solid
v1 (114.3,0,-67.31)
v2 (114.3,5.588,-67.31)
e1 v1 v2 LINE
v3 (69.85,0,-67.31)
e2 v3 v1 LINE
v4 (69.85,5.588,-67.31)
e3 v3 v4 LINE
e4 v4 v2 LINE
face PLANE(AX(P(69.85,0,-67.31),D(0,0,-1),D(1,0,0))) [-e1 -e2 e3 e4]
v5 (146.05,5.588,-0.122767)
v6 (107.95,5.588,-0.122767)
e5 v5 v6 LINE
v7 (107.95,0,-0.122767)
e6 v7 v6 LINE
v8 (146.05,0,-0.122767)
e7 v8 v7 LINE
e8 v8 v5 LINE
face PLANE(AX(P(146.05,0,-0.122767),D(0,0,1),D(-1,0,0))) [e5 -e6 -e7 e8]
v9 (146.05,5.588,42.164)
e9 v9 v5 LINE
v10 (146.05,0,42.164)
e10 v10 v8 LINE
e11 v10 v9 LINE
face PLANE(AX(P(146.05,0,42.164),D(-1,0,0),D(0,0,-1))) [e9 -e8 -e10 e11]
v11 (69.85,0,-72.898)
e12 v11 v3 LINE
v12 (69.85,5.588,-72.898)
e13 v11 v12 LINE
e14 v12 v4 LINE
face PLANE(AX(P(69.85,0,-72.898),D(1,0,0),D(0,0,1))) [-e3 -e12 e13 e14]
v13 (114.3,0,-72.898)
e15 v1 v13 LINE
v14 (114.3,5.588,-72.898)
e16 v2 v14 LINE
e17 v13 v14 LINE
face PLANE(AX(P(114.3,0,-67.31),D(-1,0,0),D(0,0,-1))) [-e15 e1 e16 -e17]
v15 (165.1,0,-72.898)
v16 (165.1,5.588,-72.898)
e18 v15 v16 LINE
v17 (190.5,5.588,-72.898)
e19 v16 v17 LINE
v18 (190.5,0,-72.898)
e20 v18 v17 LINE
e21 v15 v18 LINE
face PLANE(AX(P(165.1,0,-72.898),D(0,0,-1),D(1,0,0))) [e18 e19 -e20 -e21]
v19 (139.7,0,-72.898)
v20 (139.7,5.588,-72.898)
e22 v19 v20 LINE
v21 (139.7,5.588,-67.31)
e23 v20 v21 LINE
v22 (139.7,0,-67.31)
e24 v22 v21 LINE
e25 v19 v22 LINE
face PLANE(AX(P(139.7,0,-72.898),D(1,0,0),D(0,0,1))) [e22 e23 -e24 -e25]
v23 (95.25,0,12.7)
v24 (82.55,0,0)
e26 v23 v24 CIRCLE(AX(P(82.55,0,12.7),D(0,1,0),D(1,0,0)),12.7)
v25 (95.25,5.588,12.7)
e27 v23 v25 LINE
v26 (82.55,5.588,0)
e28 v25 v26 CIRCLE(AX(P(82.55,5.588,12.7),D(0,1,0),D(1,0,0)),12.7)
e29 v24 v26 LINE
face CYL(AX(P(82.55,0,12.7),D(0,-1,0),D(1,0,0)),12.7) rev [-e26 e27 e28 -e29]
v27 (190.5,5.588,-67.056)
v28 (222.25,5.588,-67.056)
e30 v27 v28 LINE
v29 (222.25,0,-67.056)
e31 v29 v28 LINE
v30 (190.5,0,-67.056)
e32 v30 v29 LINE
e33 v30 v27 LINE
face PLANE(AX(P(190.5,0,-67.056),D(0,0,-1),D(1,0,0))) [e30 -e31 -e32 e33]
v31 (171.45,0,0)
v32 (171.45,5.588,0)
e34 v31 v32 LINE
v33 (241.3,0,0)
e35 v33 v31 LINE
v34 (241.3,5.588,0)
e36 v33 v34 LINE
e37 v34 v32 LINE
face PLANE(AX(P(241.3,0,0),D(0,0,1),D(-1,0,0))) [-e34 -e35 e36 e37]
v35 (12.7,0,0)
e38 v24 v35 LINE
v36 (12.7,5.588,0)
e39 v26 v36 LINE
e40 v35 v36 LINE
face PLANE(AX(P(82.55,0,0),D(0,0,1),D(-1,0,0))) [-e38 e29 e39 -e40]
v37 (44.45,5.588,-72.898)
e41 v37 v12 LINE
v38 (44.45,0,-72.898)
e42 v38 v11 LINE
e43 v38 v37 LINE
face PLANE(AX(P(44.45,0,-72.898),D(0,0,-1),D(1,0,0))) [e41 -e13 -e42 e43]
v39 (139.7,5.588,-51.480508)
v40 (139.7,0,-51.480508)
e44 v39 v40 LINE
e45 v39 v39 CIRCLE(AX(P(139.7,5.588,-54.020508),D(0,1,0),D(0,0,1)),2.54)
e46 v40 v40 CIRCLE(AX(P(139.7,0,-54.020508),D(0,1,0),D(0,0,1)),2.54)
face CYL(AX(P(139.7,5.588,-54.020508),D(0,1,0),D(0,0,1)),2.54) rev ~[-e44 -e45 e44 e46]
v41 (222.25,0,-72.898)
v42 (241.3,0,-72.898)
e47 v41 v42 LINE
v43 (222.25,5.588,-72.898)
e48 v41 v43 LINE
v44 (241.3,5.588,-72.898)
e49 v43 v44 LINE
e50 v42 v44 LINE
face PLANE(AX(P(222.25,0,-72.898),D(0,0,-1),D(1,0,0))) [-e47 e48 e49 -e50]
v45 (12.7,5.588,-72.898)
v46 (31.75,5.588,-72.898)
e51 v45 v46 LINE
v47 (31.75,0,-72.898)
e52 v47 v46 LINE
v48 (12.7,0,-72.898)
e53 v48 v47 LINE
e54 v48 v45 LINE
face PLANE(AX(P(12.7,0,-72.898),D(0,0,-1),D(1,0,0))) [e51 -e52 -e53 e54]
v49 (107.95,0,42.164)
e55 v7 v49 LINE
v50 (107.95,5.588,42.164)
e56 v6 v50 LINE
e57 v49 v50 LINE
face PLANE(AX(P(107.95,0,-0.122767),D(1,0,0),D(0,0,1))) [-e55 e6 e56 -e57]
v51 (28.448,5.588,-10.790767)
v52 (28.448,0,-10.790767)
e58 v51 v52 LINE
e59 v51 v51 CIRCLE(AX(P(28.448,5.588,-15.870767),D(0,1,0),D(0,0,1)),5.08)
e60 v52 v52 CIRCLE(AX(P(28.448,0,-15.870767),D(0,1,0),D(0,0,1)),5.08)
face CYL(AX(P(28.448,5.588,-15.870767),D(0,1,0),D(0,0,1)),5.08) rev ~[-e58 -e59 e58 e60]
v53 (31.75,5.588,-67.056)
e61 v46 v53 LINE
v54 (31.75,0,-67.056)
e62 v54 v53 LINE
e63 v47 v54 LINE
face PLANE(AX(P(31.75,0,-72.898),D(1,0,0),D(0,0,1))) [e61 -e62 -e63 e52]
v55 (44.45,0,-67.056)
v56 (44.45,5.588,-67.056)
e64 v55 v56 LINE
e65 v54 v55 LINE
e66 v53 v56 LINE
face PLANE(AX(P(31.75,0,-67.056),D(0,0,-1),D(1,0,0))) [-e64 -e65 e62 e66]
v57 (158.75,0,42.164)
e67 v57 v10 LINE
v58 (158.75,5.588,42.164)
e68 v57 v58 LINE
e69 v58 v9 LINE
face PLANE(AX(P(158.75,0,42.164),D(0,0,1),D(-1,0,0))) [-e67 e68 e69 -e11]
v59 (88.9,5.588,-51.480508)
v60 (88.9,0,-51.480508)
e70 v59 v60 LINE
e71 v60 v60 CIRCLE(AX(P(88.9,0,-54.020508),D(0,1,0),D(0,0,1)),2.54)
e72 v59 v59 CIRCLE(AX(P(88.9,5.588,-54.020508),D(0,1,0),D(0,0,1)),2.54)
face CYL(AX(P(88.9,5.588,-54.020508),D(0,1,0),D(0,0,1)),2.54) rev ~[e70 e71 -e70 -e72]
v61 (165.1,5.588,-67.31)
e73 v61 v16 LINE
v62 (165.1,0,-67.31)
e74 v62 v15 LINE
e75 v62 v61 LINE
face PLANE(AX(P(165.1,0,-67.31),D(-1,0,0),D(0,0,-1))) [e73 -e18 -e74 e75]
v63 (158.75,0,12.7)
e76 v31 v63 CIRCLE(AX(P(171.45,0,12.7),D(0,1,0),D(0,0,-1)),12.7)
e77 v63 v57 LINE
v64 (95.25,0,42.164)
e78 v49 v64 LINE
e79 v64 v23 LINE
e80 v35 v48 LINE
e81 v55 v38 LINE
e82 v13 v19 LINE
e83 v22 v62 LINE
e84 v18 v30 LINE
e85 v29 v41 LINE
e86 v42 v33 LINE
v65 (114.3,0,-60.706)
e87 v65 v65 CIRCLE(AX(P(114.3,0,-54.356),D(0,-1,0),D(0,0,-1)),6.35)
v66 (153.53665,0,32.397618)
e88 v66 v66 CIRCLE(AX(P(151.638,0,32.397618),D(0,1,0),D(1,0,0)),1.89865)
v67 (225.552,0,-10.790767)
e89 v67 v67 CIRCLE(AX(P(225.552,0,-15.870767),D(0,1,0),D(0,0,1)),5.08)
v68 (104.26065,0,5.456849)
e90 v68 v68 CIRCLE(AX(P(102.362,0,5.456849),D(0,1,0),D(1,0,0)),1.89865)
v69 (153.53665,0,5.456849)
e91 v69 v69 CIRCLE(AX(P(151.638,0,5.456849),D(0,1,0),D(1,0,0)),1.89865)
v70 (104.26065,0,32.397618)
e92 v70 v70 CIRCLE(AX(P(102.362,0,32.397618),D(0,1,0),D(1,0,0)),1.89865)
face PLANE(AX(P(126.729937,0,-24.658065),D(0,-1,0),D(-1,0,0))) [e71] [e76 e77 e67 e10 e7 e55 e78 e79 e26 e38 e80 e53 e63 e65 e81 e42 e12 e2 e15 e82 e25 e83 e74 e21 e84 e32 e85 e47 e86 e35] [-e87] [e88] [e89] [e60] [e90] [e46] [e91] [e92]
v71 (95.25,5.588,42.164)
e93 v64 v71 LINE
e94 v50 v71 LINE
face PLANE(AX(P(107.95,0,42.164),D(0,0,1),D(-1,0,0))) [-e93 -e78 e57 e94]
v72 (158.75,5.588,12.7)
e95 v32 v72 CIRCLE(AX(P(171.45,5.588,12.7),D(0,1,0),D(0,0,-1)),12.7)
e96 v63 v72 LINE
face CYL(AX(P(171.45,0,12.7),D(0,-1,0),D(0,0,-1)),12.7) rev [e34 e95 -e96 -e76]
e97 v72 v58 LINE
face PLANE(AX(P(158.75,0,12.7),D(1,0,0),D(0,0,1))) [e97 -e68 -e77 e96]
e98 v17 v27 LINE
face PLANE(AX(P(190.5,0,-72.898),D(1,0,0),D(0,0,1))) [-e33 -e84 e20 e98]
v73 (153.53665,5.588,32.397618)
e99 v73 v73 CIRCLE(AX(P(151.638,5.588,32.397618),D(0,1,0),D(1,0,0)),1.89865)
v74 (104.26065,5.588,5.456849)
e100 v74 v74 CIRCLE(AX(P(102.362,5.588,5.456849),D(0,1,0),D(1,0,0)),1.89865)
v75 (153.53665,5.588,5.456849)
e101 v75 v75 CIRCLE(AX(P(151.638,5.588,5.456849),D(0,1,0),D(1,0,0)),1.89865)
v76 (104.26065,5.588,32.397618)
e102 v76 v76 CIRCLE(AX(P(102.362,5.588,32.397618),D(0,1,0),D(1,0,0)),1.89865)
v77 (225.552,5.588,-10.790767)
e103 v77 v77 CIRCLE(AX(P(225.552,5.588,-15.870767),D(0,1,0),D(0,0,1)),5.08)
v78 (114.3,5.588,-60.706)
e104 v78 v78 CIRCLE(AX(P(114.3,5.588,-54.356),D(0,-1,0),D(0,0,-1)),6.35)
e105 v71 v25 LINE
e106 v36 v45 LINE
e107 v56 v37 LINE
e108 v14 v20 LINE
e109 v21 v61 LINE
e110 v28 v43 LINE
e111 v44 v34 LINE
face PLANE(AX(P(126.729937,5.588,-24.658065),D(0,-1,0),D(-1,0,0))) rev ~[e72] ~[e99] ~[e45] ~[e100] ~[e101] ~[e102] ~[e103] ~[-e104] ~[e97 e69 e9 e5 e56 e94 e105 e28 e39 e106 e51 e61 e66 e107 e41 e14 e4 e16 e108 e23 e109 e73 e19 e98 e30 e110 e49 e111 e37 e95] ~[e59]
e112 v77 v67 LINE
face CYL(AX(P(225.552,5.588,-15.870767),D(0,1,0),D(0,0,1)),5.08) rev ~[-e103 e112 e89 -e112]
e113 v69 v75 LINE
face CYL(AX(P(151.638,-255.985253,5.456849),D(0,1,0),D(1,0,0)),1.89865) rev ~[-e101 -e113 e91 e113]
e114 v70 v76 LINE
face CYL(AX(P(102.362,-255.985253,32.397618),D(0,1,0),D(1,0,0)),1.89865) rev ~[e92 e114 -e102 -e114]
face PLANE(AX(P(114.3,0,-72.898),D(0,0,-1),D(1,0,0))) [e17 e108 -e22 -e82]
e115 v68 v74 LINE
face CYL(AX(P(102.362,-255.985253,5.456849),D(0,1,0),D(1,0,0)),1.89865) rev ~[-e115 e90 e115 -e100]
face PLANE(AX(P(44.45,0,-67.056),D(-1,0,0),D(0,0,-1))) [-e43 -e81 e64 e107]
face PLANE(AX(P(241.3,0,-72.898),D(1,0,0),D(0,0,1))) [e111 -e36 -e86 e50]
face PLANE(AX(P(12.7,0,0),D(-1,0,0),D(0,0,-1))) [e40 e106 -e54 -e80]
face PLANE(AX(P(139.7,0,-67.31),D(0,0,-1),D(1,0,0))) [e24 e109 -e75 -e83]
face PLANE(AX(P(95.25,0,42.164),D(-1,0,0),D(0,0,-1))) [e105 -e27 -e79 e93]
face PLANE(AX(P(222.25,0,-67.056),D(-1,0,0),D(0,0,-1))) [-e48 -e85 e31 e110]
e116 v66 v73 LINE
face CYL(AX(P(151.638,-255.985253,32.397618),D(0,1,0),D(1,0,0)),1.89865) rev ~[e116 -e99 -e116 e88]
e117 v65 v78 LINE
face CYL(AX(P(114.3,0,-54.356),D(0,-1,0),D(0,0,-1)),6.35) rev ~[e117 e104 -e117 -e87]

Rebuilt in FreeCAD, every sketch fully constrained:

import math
import FreeCAD as App
import Part
import Sketcher
Q = App.Units.Quantity

doc = App.newDocument("Part")
body = doc.addObject("PartDesign::Body", "Body")

# Sketch on XZ plane
sketch1 = body.newObject("Sketcher::SketchObject", "Sketch")
sketch1.AttachmentSupport = (doc.getObject("XZ_Plane"), [""])
sketch1.MapMode = "FlatFace"
sketch1.addGeometry(Part.LineSegment(App.Vector(32, -73, 0), App.Vector(13, -73, 0)), False)
sketch1.addGeometry(Part.LineSegment(App.Vector(13, -73, 0), App.Vector(13, 0, 0)), False)
sketch1.addGeometry(Part.LineSegment(App.Vector(13, 0, 0), App.Vector(83, 0, 0)), False)
sketch1.addGeometry(Part.ArcOfCircle(Part.Circle(App.Vector(83, 13, 0), App.Vector(0, 0, 1), 13), math.radians(-90), math.radians(0)), False)
sketch1.addGeometry(Part.LineSegment(App.Vector(95, 13, 0), App.Vector(95, 42, 0)), False)
sketch1.addGeometry(Part.LineSegment(App.Vector(95, 42, 0), App.Vector(108, 42, 0)), False)
sketch1.addGeometry(Part.LineSegment(App.Vector(108, 42, 0), App.Vector(108, 0, 0)), False)
sketch1.addGeometry(Part.LineSegment(App.Vector(108, 0, 0), App.Vector(146, 0, 0)), False)
sketch1.addGeometry(Part.LineSegment(App.Vector(146, 0, 0), App.Vector(146, 42, 0)), False)
sketch1.addGeometry(Part.LineSegment(App.Vector(146, 42, 0), App.Vector(159, 42, 0)), False)
sketch1.addGeometry(Part.LineSegment(App.Vector(159, 42, 0), App.Vector(159, 13, 0)), False)
sketch1.addGeometry(Part.ArcOfCircle(Part.Circle(App.Vector(171, 13, 0), App.Vector(0, 0, 1), 13), math.radians(180), math.radians(270)), False)
sketch1.addGeometry(Part.LineSegment(App.Vector(171, 0, 0), App.Vector(241, 0, 0)), False)
sketch1.addGeometry(Part.LineSegment(App.Vector(241, 0, 0), App.Vector(241, -73, 0)), False)
sketch1.addGeometry(Part.LineSegment(App.Vector(241, -73, 0), App.Vector(222, -73, 0)), False)
sketch1.addGeometry(Part.LineSegment(App.Vector(222, -73, 0), App.Vector(222, -67, 0)), False)
sketch1.addGeometry(Part.LineSegment(App.Vector(222, -67, 0), App.Vector(190, -67, 0)), False)
sketch1.addGeometry(Part.LineSegment(App.Vector(190, -67, 0), App.Vector(190, -73, 0)), False)
sketch1.addGeometry(Part.LineSegment(App.Vector(190, -73, 0), App.Vector(165, -73, 0)), False)
sketch1.addGeometry(Part.LineSegment(App.Vector(165, -73, 0), App.Vector(165, -67, 0)), False)
sketch1.addGeometry(Part.LineSegment(App.Vector(165, -67, 0), App.Vector(140, -67, 0)), False)
sketch1.addGeometry(Part.LineSegment(App.Vector(140, -67, 0), App.Vector(140, -73, 0)), False)
sketch1.addGeometry(Part.LineSegment(App.Vector(140, -73, 0), App.Vector(114, -73, 0)), False)
sketch1.addGeometry(Part.LineSegment(App.Vector(114, -73, 0), App.Vector(114, -67, 0)), False)
sketch1.addGeometry(Part.LineSegment(App.Vector(114, -67, 0), App.Vector(70, -67, 0)), False)
sketch1.addGeometry(Part.LineSegment(App.Vector(70, -67, 0), App.Vector(70, -73, 0)), False)
sketch1.addGeometry(Part.LineSegment(App.Vector(70, -73, 0), App.Vector(44, -73, 0)), False)
sketch1.addGeometry(Part.LineSegment(App.Vector(44, -73, 0), App.Vector(44, -67, 0)), False)
sketch1.addGeometry(Part.LineSegment(App.Vector(44, -67, 0), App.Vector(32, -67, 0)), False)
sketch1.addGeometry(Part.LineSegment(App.Vector(32, -67, 0), App.Vector(32, -73, 0)), False)
sketch1.addConstraint(Sketcher.Constraint("Coincident", 0, 2, 1, 1))
sketch1.addConstraint(Sketcher.Constraint("Coincident", 1, 2, 2, 1))
sketch1.addConstraint(Sketcher.Constraint("Tangent", 2, 2, 3, 1))
sketch1.addConstraint(Sketcher.Constraint("Tangent", 3, 2, 4, 1))
sketch1.addConstraint(Sketcher.Constraint("Coincident", 4, 2, 5, 1))
sketch1.addConstraint(Sketcher.Constraint("Coincident", 5, 2, 6, 1))
sketch1.addConstraint(Sketcher.Constraint("Coincident", 6, 2, 7, 1))
sketch1.addConstraint(Sketcher.Constraint("Coincident", 7, 2, 8, 1))
sketch1.addConstraint(Sketcher.Constraint("Coincident", 8, 2, 9, 1))
sketch1.addConstraint(Sketcher.Constraint("Coincident", 9, 2, 10, 1))
sketch1.addConstraint(Sketcher.Constraint("Tangent", 10, 2, 11, 1))
sketch1.addConstraint(Sketcher.Constraint("Tangent", 11, 2, 12, 1))
sketch1.addConstraint(Sketcher.Constraint("Coincident", 12, 2, 13, 1))
sketch1.addConstraint(Sketcher.Constraint("Coincident", 13, 2, 14, 1))
sketch1.addConstraint(Sketcher.Constraint("Coincident", 14, 2, 15, 1))
sketch1.addConstraint(Sketcher.Constraint("Coincident", 15, 2, 16, 1))
sketch1.addConstraint(Sketcher.Constraint("Coincident", 16, 2, 17, 1))
sketch1.addConstraint(Sketcher.Constraint("Coincident", 17, 2, 18, 1))
sketch1.addConstraint(Sketcher.Constraint("Coincident", 18, 2, 19, 1))
sketch1.addConstraint(Sketcher.Constraint("Coincident", 19, 2, 20, 1))
sketch1.addConstraint(Sketcher.Constraint("Coincident", 20, 2, 21, 1))
sketch1.addConstraint(Sketcher.Constraint("Coincident", 21, 2, 22, 1))
sketch1.addConstraint(Sketcher.Constraint("Coincident", 22, 2, 23, 1))
sketch1.addConstraint(Sketcher.Constraint("Coincident", 23, 2, 24, 1))
sketch1.addConstraint(Sketcher.Constraint("Coincident", 24, 2, 25, 1))
sketch1.addConstraint(Sketcher.Constraint("Coincident", 25, 2, 26, 1))
sketch1.addConstraint(Sketcher.Constraint("Coincident", 26, 2, 27, 1))
sketch1.addConstraint(Sketcher.Constraint("Coincident", 27, 2, 28, 1))
sketch1.addConstraint(Sketcher.Constraint("Coincident", 28, 2, 29, 1))
sketch1.addConstraint(Sketcher.Constraint("Coincident", 29, 2, 0, 1))
sketch1.addConstraint(Sketcher.Constraint("Horizontal", 0))
sketch1.addConstraint(Sketcher.Constraint("Vertical", 1))
sketch1.addConstraint(Sketcher.Constraint("Horizontal", 2))
sketch1.addConstraint(Sketcher.Constraint("Vertical", 4))
sketch1.addConstraint(Sketcher.Constraint("Horizontal", 5))
sketch1.addConstraint(Sketcher.Constraint("Vertical", 6))
sketch1.addConstraint(Sketcher.Constraint("Horizontal", 7))
sketch1.addConstraint(Sketcher.Constraint("Vertical", 8))
sketch1.addConstraint(Sketcher.Constraint("Horizontal", 9))
sketch1.addConstraint(Sketcher.Constraint("Vertical", 10))
sketch1.addConstraint(Sketcher.Constraint("Horizontal", 12))
sketch1.addConstraint(Sketcher.Constraint("Vertical", 13))
sketch1.addConstraint(Sketcher.Constraint("Horizontal", 14))
sketch1.addConstraint(Sketcher.Constraint("Vertical", 15))
sketch1.addConstraint(Sketcher.Constraint("Horizontal", 16))
sketch1.addConstraint(Sketcher.Constraint("Vertical", 17))
sketch1.addConstraint(Sketcher.Constraint("Horizontal", 18))
sketch1.addConstraint(Sketcher.Constraint("Vertical", 19))
sketch1.addConstraint(Sketcher.Constraint("Horizontal", 20))
sketch1.addConstraint(Sketcher.Constraint("Vertical", 21))
sketch1.addConstraint(Sketcher.Constraint("Horizontal", 22))
sketch1.addConstraint(Sketcher.Constraint("Vertical", 23))
sketch1.addConstraint(Sketcher.Constraint("Horizontal", 24))
sketch1.addConstraint(Sketcher.Constraint("Vertical", 25))
sketch1.addConstraint(Sketcher.Constraint("Horizontal", 26))
sketch1.addConstraint(Sketcher.Constraint("Vertical", 27))
sketch1.addConstraint(Sketcher.Constraint("Horizontal", 28))
sketch1.addConstraint(Sketcher.Constraint("Vertical", 29))
sketch1.addConstraint(Sketcher.Constraint("Equal", 3, 11))
sketch1.addConstraint(Sketcher.Constraint("PointOnObject", 1, 2, -1))
sketch1.addConstraint(Sketcher.Constraint("PointOnObject", 11, 2, -1))
sketch1.addConstraint(Sketcher.Constraint("Horizontal", 5, 2, 8, 2))
sketch1.addConstraint(Sketcher.Constraint("Horizontal", 0, 2, 13, 2))
sketch1.addConstraint(Sketcher.Constraint("Horizontal", 14, 2, 17, 2))
sketch1.addConstraint(Sketcher.Constraint("Horizontal", 18, 2, 21, 2))
sketch1.addConstraint(Sketcher.Constraint("Horizontal", 20, 2, 23, 2))
sketch1.addConstraint(Sketcher.Constraint("Horizontal", 22, 2, 25, 2))
sketch1.addConstraint(Sketcher.Constraint("Horizontal", 16, 2, 27, 2))
sketch1.addConstraint(Sketcher.Constraint("Equal", 5, 9))
sketch1.addConstraint(Sketcher.Constraint("Equal", 2, 12))
sketch1.addConstraint(Sketcher.Constraint("Equal", 0, 14))
sketch1.addConstraint(Sketcher.Constraint("Equal", 18, 20))
sketch1.addConstraint(Sketcher.Constraint("Equal", 20, 22))
sketch1.addConstraint(Sketcher.Constraint("Equal", 22, 26))
sketch1.addConstraint(Sketcher.Constraint("Equal", 9, 28))
sketch1.addConstraint(Sketcher.Constraint("Radius", 3, Q("0.5 in")))
sketch1.addConstraint(Sketcher.Constraint("DistanceX", 18, 2, 18, 1, Q("1 in")))
sketch1.addConstraint(Sketcher.Constraint("DistanceX", 5, 1, 5, 2, Q("0.5 in")))
sketch1.addConstraint(Sketcher.Constraint("DistanceX", 7, 1, 7, 2, Q("1.5 in")))
sketch1.addConstraint(Sketcher.Constraint("DistanceX", 11, 2, 14, 2, Q("2 in")))
sketch1.addConstraint(Sketcher.Constraint("DistanceX", 16, 2, 13, 2, Q("2 in")))
sketch1.addConstraint(Sketcher.Constraint("DistanceX", 0, 2, 0, 1, Q("0.75 in")))
sketch1.addConstraint(Sketcher.Constraint("DistanceY", 1, 1, 1, 2, Q("2.87 in")))
sketch1.addConstraint(Sketcher.Constraint("DistanceY", 4, 1, 4, 2, Q("1.16 in")))
sketch1.addConstraint(Sketcher.Constraint("DistanceY", 15, 1, 15, 2, Q("0.23 in")))
sketch1.addConstraint(Sketcher.Constraint("DistanceY", 19, 1, 19, 2, Q("0.22 in")))
sketch1.addConstraint(Sketcher.Constraint("DistanceX", -1, 1, 0, 2, Q("0.5 in")))
sketch1.addConstraint(Sketcher.Constraint("DistanceY", 6, 2, 6, 1, 42.286767))
pad1 = body.newObject("PartDesign::Pad", "Pad")
pad1.Profile = sketch1
pad1.Length = Q("0.22 in")
pad1.Reversed = True

# Sketch on XZ plane
sketch2 = body.newObject("Sketcher::SketchObject", "Sketch001")
sketch2.AttachmentSupport = (doc.getObject("XZ_Plane"), [""])
sketch2.MapMode = "FlatFace"
sketch2.addGeometry(Part.Circle(App.Vector(102.4, 32.4, 0), App.Vector(0, 0, 1), 1.9), False)
sketch2.addGeometry(Part.Circle(App.Vector(151.6, 32.4, 0), App.Vector(0, 0, 1), 1.9), False)
sketch2.addGeometry(Part.Circle(App.Vector(151.6, 5.5, 0), App.Vector(0, 0, 1), 1.9), False)
sketch2.addGeometry(Part.Circle(App.Vector(102.4, 5.5, 0), App.Vector(0, 0, 1), 1.9), False)
sketch2.addConstraint(Sketcher.Constraint("Equal", 0, 1))
sketch2.addConstraint(Sketcher.Constraint("Equal", 1, 2))
sketch2.addConstraint(Sketcher.Constraint("Equal", 2, 3))
sketch2.addConstraint(Sketcher.Constraint("Horizontal", 0, 3, 1, 3))
sketch2.addConstraint(Sketcher.Constraint("Horizontal", 2, 3, 3, 3))
sketch2.addConstraint(Sketcher.Constraint("Vertical", 1, 3, 2, 3))
sketch2.addConstraint(Sketcher.Constraint("Vertical", 0, 3, 3, 3))
sketch2.addConstraint(Sketcher.Constraint("Diameter", 0, Q("0.1495 in")))
sketch2.addConstraint(Sketcher.Constraint("DistanceX", -1, 1, 0, 3, Q("4.03 in")))
sketch2.addConstraint(Sketcher.Constraint("DistanceX", -1, 1, 1, 3, Q("5.97 in")))
sketch2.addConstraint(Sketcher.Constraint("DistanceY", -1, 1, 2, 3, 5.456849))
sketch2.addConstraint(Sketcher.Constraint("DistanceY", 2, 3, 1, 3, 26.940768))
doc.recompute()
hole = body.newObject("PartDesign::Hole", "Hole")
hole.Profile = sketch2
hole.ThreadType = "None"
hole.Diameter = Q("0.1495 in")
hole.DepthType = "ThroughAll"

# Sketch on XZ plane
sketch3 = body.newObject("Sketcher::SketchObject", "Sketch002")
sketch3.AttachmentSupport = (doc.getObject("XZ_Plane"), [""])
sketch3.MapMode = "FlatFace"
sketch3.AttachmentOffset = App.Placement(App.Vector(0, 0, -0.22 * 25.4), App.Rotation())
sketch3.addGeometry(Part.Circle(App.Vector(226, -16, 0), App.Vector(0, 0, 1), 5), False)
sketch3.addConstraint(Sketcher.Constraint("Diameter", 0, Q("0.4 in")))
sketch3.addConstraint(Sketcher.Constraint("DistanceX", -1, 1, 0, 3, Q("8.88 in")))
sketch3.addConstraint(Sketcher.Constraint("DistanceY", 0, 3, -1, 1, 15.870767))
pocket1 = body.newObject("PartDesign::Pocket", "Pocket")
pocket1.Profile = sketch3
pocket1.Type = "UpToFirst"
pocket1.Reversed = True

# Sketch on XZ plane
sketch4 = body.newObject("Sketcher::SketchObject", "Sketch003")
sketch4.AttachmentSupport = (doc.getObject("XZ_Plane"), [""])
sketch4.MapMode = "FlatFace"
sketch4.AttachmentOffset = App.Placement(App.Vector(0, 0, -0.22 * 25.4), App.Rotation())
sketch4.addGeometry(Part.Circle(App.Vector(28, -16, 0), App.Vector(0, 0, 1), 5), False)
sketch4.addConstraint(Sketcher.Constraint("Diameter", 0, Q("0.4 in")))
sketch4.addConstraint(Sketcher.Constraint("DistanceX", -1, 1, 0, 3, Q("1.12 in")))
sketch4.addConstraint(Sketcher.Constraint("DistanceY", 0, 3, -1, 1, 15.870767))
pocket2 = body.newObject("PartDesign::Pocket", "Pocket001")
pocket2.Profile = sketch4
pocket2.Type = "UpToFirst"
pocket2.Reversed = True

# Sketch on XZ plane
sketch5 = body.newObject("Sketcher::SketchObject", "Sketch004")
sketch5.AttachmentSupport = (doc.getObject("XZ_Plane"), [""])
sketch5.MapMode = "FlatFace"
sketch5.addGeometry(Part.Circle(App.Vector(114, -54, 0), App.Vector(0, 0, 1), 6), False)
sketch5.addConstraint(Sketcher.Constraint("Diameter", 0, Q("0.5 in")))
sketch5.addConstraint(Sketcher.Constraint("DistanceX", -1, 1, 0, 3, Q("4.5 in")))
sketch5.addConstraint(Sketcher.Constraint("DistanceY", 0, 3, -1, 1, Q("2.14 in")))
pocket3 = body.newObject("PartDesign::Pocket", "Pocket002")
pocket3.Profile = sketch5
pocket3.Type = "UpToFirst"

# Sketch on XZ plane
sketch6 = body.newObject("Sketcher::SketchObject", "Sketch005")
sketch6.AttachmentSupport = (doc.getObject("XZ_Plane"), [""])
sketch6.MapMode = "FlatFace"
sketch6.AttachmentOffset = App.Placement(App.Vector(0, 0, -0.22 * 25.4), App.Rotation())
sketch6.addGeometry(Part.Circle(App.Vector(139.7, -54, 0), App.Vector(0, 0, 1), 2.5), False)
sketch6.addConstraint(Sketcher.Constraint("Diameter", 0, Q("0.2 in")))
sketch6.addConstraint(Sketcher.Constraint("DistanceX", -1, 1, 0, 3, Q("5.5 in")))
sketch6.addConstraint(Sketcher.Constraint("DistanceY", 0, 3, -1, 1, 54.020508))
pocket4 = body.newObject("PartDesign::Pocket", "Pocket003")
pocket4.Profile = sketch6
pocket4.Type = "UpToFirst"
pocket4.Reversed = True

# Sketch on XZ plane
sketch7 = body.newObject("Sketcher::SketchObject", "Sketch006")
sketch7.AttachmentSupport = (doc.getObject("XZ_Plane"), [""])
sketch7.MapMode = "FlatFace"
sketch7.AttachmentOffset = App.Placement(App.Vector(0, 0, -0.22 * 25.4), App.Rotation())
sketch7.addGeometry(Part.Circle(App.Vector(88.9, -54, 0), App.Vector(0, 0, 1), 2.5), False)
sketch7.addConstraint(Sketcher.Constraint("Diameter", 0, Q("0.2 in")))
sketch7.addConstraint(Sketcher.Constraint("DistanceX", -1, 1, 0, 3, Q("3.5 in")))
sketch7.addConstraint(Sketcher.Constraint("DistanceY", 0, 3, -1, 1, 54.020508))
pocket5 = body.newObject("PartDesign::Pocket", "Pocket004")
pocket5.Profile = sketch7
pocket5.Type = "UpToFirst"
pocket5.Reversed = True

doc.recompute()
